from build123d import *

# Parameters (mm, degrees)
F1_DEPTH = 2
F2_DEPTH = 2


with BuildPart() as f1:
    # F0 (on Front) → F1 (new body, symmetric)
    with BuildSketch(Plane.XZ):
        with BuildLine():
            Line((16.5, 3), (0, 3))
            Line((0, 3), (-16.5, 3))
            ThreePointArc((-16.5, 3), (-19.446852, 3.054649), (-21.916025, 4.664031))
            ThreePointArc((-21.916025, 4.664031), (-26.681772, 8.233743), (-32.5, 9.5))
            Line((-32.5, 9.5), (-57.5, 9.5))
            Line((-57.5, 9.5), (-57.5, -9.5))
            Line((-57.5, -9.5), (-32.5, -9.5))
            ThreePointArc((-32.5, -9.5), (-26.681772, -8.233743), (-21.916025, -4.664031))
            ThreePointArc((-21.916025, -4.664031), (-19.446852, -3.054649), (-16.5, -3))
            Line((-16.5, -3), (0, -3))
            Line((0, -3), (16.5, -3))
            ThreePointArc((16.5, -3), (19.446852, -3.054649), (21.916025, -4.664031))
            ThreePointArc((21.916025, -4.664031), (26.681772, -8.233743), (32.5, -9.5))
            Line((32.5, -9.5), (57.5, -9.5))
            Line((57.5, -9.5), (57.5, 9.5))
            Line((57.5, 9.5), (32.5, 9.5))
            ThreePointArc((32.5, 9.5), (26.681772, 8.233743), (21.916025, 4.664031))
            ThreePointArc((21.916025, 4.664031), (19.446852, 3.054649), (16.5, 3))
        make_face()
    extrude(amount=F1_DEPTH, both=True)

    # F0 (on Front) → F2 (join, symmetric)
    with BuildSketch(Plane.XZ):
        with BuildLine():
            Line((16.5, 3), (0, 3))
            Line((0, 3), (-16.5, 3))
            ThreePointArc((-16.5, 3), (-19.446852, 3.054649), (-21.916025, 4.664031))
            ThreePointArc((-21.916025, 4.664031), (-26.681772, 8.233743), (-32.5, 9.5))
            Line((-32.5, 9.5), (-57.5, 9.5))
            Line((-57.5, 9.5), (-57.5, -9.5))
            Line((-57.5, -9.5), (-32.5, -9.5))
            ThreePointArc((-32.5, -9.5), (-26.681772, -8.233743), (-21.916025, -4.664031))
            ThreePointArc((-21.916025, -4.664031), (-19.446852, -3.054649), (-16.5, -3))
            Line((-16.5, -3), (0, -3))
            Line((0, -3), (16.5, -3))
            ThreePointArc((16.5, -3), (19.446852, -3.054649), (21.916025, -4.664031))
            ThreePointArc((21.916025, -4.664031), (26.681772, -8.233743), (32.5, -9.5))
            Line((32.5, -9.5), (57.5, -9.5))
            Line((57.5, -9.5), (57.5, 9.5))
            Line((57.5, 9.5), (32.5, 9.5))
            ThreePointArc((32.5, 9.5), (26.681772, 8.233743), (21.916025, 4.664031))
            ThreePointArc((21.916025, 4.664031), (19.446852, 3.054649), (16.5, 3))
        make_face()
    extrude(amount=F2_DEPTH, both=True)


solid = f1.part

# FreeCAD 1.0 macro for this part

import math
import FreeCAD as App
import Part
import Sketcher

doc = App.newDocument("Part")
params = doc.addObject("Spreadsheet::Sheet", "Params")
for row, (alias, value) in enumerate([
    ("sketch1_width", "33 mm"),
    ("sketch1_width2", "25 mm"),
    ("sketch1_height", "19 mm"),
    ("pad1_length", "4 mm"),
    ("sketch2_width", "33 mm"),
    ("sketch2_width2", "25 mm"),
    ("sketch2_height", "19 mm"),
    ("pad2_length", "4 mm"),
], start=1):
    params.set(f"A{row}", alias)
    params.set(f"B{row}", "=" + value)
    params.setAlias(f"B{row}", alias)

body = doc.addObject("PartDesign::Body", "Body")

# Sketch on XZ plane
sketch1 = body.newObject("Sketcher::SketchObject", "Sketch")
sketch1.AttachmentSupport = (doc.getObject("XZ_Plane"), [""])
sketch1.MapMode = "FlatFace"
sketch1.addGeometry(Part.LineSegment(App.Vector(16.5, 3, 0), App.Vector(-16.5, 3, 0)), False)
sketch1.addGeometry(Part.ArcOfCircle(Part.Circle(App.Vector(-17.878239, 8.160112, 0), App.Vector(0, 0, 1), 5.341001), math.radians(-139.112644), math.radians(-75.045682)), False)
sketch1.addGeometry(Part.ArcOfCircle(Part.Circle(App.Vector(-32.500002, -4.500003, 0), App.Vector(0, 0, 1), 14.000003), math.radians(40.887334), math.radians(89.999993)), False)
sketch1.addGeometry(Part.LineSegment(App.Vector(-32.5, 9.5, 0), App.Vector(-57.5, 9.5, 0)), False)
sketch1.addGeometry(Part.LineSegment(App.Vector(-57.5, 9.5, 0), App.Vector(-57.5, -9.5, 0)), False)
sketch1.addGeometry(Part.LineSegment(App.Vector(-57.5, -9.5, 0), App.Vector(-32.5, -9.5, 0)), False)
sketch1.addGeometry(Part.ArcOfCircle(Part.Circle(App.Vector(-32.500002, 4.500003, 0), App.Vector(0, 0, 1), 14.000003), math.radians(-89.999993), math.radians(-40.887334)), False)
sketch1.addGeometry(Part.ArcOfCircle(Part.Circle(App.Vector(-17.878239, -8.160112, 0), App.Vector(0, 0, 1), 5.341001), math.radians(75.045682), math.radians(139.112644)), False)
sketch1.addGeometry(Part.LineSegment(App.Vector(-16.5, -3, 0), App.Vector(16.5, -3, 0)), False)
sketch1.addGeometry(Part.ArcOfCircle(Part.Circle(App.Vector(17.878239, -8.160112, 0), App.Vector(0, 0, 1), 5.341001), math.radians(40.887356), math.radians(104.954318)), False)
sketch1.addGeometry(Part.ArcOfCircle(Part.Circle(App.Vector(32.500002, 4.500003, 0), App.Vector(0, 0, 1), 14.000003), math.radians(-139.112666), math.radians(-90.000007)), False)
sketch1.addGeometry(Part.LineSegment(App.Vector(32.5, -9.5, 0), App.Vector(57.5, -9.5, 0)), False)
sketch1.addGeometry(Part.LineSegment(App.Vector(57.5, -9.5, 0), App.Vector(57.5, 9.5, 0)), False)
sketch1.addGeometry(Part.LineSegment(App.Vector(57.5, 9.5, 0), App.Vector(32.5, 9.5, 0)), False)
sketch1.addGeometry(Part.ArcOfCircle(Part.Circle(App.Vector(32.500002, -4.500003, 0), App.Vector(0, 0, 1), 14.000003), math.radians(90.000007), math.radians(139.112666)), False)
sketch1.addGeometry(Part.ArcOfCircle(Part.Circle(App.Vector(17.878239, 8.160112, 0), App.Vector(0, 0, 1), 5.341001), math.radians(-104.954318), math.radians(-40.887356)), False)
sketch1.addConstraint(Sketcher.Constraint("Coincident", 0, 2, 1, 2))
sketch1.addConstraint(Sketcher.Constraint("Tangent", 1, 1, 2, 1))
sketch1.addConstraint(Sketcher.Constraint("Tangent", 2, 2, 3, 1))
sketch1.addConstraint(Sketcher.Constraint("Coincident", 3, 2, 4, 1))
sketch1.addConstraint(Sketcher.Constraint("Coincident", 4, 2, 5, 1))
sketch1.addConstraint(Sketcher.Constraint("Tangent", 5, 2, 6, 1))
sketch1.addConstraint(Sketcher.Constraint("Tangent", 6, 2, 7, 2))
sketch1.addConstraint(Sketcher.Constraint("Coincident", 7, 1, 8, 1))
sketch1.addConstraint(Sketcher.Constraint("Coincident", 8, 2, 9, 2))
sketch1.addConstraint(Sketcher.Constraint("Tangent", 9, 1, 10, 1))
sketch1.addConstraint(Sketcher.Constraint("Tangent", 10, 2, 11, 1))
sketch1.addConstraint(Sketcher.Constraint("Coincident", 11, 2, 12, 1))
sketch1.addConstraint(Sketcher.Constraint("Coincident", 12, 2, 13, 1))
sketch1.addConstraint(Sketcher.Constraint("Tangent", 13, 2, 14, 1))
sketch1.addConstraint(Sketcher.Constraint("Tangent", 14, 2, 15, 2))
sketch1.addConstraint(Sketcher.Constraint("Coincident", 15, 1, 0, 1))
sketch1.addConstraint(Sketcher.Constraint("Horizontal", 0))
sketch1.addConstraint(Sketcher.Constraint("Horizontal", 3))
sketch1.addConstraint(Sketcher.Constraint("Vertical", 4))
sketch1.addConstraint(Sketcher.Constraint("Horizontal", 5))
sketch1.addConstraint(Sketcher.Constraint("Horizontal", 8))
sketch1.addConstraint(Sketcher.Constraint("Horizontal", 11))
sketch1.addConstraint(Sketcher.Constraint("Vertical", 12))
sketch1.addConstraint(Sketcher.Constraint("Horizontal", 13))
sketch1.addConstraint(Sketcher.Constraint("Equal", 2, 6))
sketch1.addConstraint(Sketcher.Constraint("Equal", 1, 7))
sketch1.addConstraint(Sketcher.Constraint("Equal", 7, 9))
sketch1.addConstraint(Sketcher.Constraint("Equal", 6, 10))
sketch1.addConstraint(Sketcher.Constraint("Equal", 10, 14))
sketch1.addConstraint(Sketcher.Constraint("Equal", 9, 15))
sketch1.addConstraint(Sketcher.Constraint("Symmetric", 1, 3, 9, 3, -1, 1))
sketch1.addConstraint(Sketcher.Constraint("Symmetric", 6, 3, 14, 3, -1, 1))
sketch1.addConstraint(Sketcher.Constraint("Symmetric", 3, 2, 11, 2, -1, 1))
sketch1.addConstraint(Sketcher.Constraint("Symmetric", 7, 1, 15, 1, -1, 1))
sketch1.addConstraint(Sketcher.Constraint("Symmetric", 7, 3, 9, 3, -2))
sketch1.addConstraint(Sketcher.Constraint("Horizontal", 6, 3, 10, 3))
sketch1.addConstraint(Sketcher.Constraint("DistanceX", 0, 2, 0, 1, 33.0))
sketch1.addConstraint(Sketcher.Constraint("DistanceX", 3, 2, 3, 1, 25.0))
sketch1.addConstraint(Sketcher.Constraint("DistanceY", 4, 2, 4, 1, 19.0))
sketch1.addConstraint(Sketcher.Constraint("DistanceY", -1, 1, 0, 2, 3.0))
sketch1.addConstraint(Sketcher.Constraint("Radius", 1, 5.341001))
sketch1.addConstraint(Sketcher.Constraint("DistanceX", 6, 3, 0, 2, 16.000002))
sketch1.addConstraint(Sketcher.Constraint("Radius", 2, 14.000003))
sketch1.setExpression("Constraints[36]", "Params.sketch1_width")
sketch1.setExpression("Constraints[37]", "Params.sketch1_width2")
sketch1.setExpression("Constraints[38]", "Params.sketch1_height")
pad1 = body.newObject("PartDesign::Pad", "Pad")
pad1.Profile = sketch1
pad1.setExpression("Length", "Params.pad1_length")
pad1.Midplane = True

# Sketch on XZ plane
sketch2 = body.newObject("Sketcher::SketchObject", "Sketch001")
sketch2.AttachmentSupport = (doc.getObject("XZ_Plane"), [""])
sketch2.MapMode = "FlatFace"
sketch2.addGeometry(Part.LineSegment(App.Vector(16.5, 3, 0), App.Vector(-16.5, 3, 0)), False)
sketch2.addGeometry(Part.ArcOfCircle(Part.Circle(App.Vector(-17.878239, 8.160112, 0), App.Vector(0, 0, 1), 5.341001), math.radians(-139.112644), math.radians(-75.045682)), False)
sketch2.addGeometry(Part.ArcOfCircle(Part.Circle(App.Vector(-32.500002, -4.500003, 0), App.Vector(0, 0, 1), 14.000003), math.radians(40.887334), math.radians(89.999993)), False)
sketch2.addGeometry(Part.LineSegment(App.Vector(-32.5, 9.5, 0), App.Vector(-57.5, 9.5, 0)), False)
sketch2.addGeometry(Part.LineSegment(App.Vector(-57.5, 9.5, 0), App.Vector(-57.5, -9.5, 0)), False)
sketch2.addGeometry(Part.LineSegment(App.Vector(-57.5, -9.5, 0), App.Vector(-32.5, -9.5, 0)), False)
sketch2.addGeometry(Part.ArcOfCircle(Part.Circle(App.Vector(-32.500002, 4.500003, 0), App.Vector(0, 0, 1), 14.000003), math.radians(-89.999993), math.radians(-40.887334)), False)
sketch2.addGeometry(Part.ArcOfCircle(Part.Circle(App.Vector(-17.878239, -8.160112, 0), App.Vector(0, 0, 1), 5.341001), math.radians(75.045682), math.radians(139.112644)), False)
sketch2.addGeometry(Part.LineSegment(App.Vector(-16.5, -3, 0), App.Vector(16.5, -3, 0)), False)
sketch2.addGeometry(Part.ArcOfCircle(Part.Circle(App.Vector(17.878239, -8.160112, 0), App.Vector(0, 0, 1), 5.341001), math.radians(40.887356), math.radians(104.954318)), False)
sketch2.addGeometry(Part.ArcOfCircle(Part.Circle(App.Vector(32.500002, 4.500003, 0), App.Vector(0, 0, 1), 14.000003), math.radians(-139.112666), math.radians(-90.000007)), False)
sketch2.addGeometry(Part.LineSegment(App.Vector(32.5, -9.5, 0), App.Vector(57.5, -9.5, 0)), False)
sketch2.addGeometry(Part.LineSegment(App.Vector(57.5, -9.5, 0), App.Vector(57.5, 9.5, 0)), False)
sketch2.addGeometry(Part.LineSegment(App.Vector(57.5, 9.5, 0), App.Vector(32.5, 9.5, 0)), False)
sketch2.addGeometry(Part.ArcOfCircle(Part.Circle(App.Vector(32.500002, -4.500003, 0), App.Vector(0, 0, 1), 14.000003), math.radians(90.000007), math.radians(139.112666)), False)
sketch2.addGeometry(Part.ArcOfCircle(Part.Circle(App.Vector(17.878239, 8.160112, 0), App.Vector(0, 0, 1), 5.341001), math.radians(-104.954318), math.radians(-40.887356)), False)
sketch2.addConstraint(Sketcher.Constraint("Coincident", 0, 2, 1, 2))
sketch2.addConstraint(Sketcher.Constraint("Tangent", 1, 1, 2, 1))
sketch2.addConstraint(Sketcher.Constraint("Tangent", 2, 2, 3, 1))
sketch2.addConstraint(Sketcher.Constraint("Coincident", 3, 2, 4, 1))
sketch2.addConstraint(Sketcher.Constraint("Coincident", 4, 2, 5, 1))
sketch2.addConstraint(Sketcher.Constraint("Tangent", 5, 2, 6, 1))
sketch2.addConstraint(Sketcher.Constraint("Tangent", 6, 2, 7, 2))
sketch2.addConstraint(Sketcher.Constraint("Coincident", 7, 1, 8, 1))
sketch2.addConstraint(Sketcher.Constraint("Coincident", 8, 2, 9, 2))
sketch2.addConstraint(Sketcher.Constraint("Tangent", 9, 1, 10, 1))
sketch2.addConstraint(Sketcher.Constraint("Tangent", 10, 2, 11, 1))
sketch2.addConstraint(Sketcher.Constraint("Coincident", 11, 2, 12, 1))
sketch2.addConstraint(Sketcher.Constraint("Coincident", 12, 2, 13, 1))
sketch2.addConstraint(Sketcher.Constraint("Tangent", 13, 2, 14, 1))
sketch2.addConstraint(Sketcher.Constraint("Tangent", 14, 2, 15, 2))
sketch2.addConstraint(Sketcher.Constraint("Coincident", 15, 1, 0, 1))
sketch2.addConstraint(Sketcher.Constraint("Horizontal", 0))
sketch2.addConstraint(Sketcher.Constraint("Horizontal", 3))
sketch2.addConstraint(Sketcher.Constraint("Vertical", 4))
sketch2.addConstraint(Sketcher.Constraint("Horizontal", 5))
sketch2.addConstraint(Sketcher.Constraint("Horizontal", 8))
sketch2.addConstraint(Sketcher.Constraint("Horizontal", 11))
sketch2.addConstraint(Sketcher.Constraint("Vertical", 12))
sketch2.addConstraint(Sketcher.Constraint("Horizontal", 13))
sketch2.addConstraint(Sketcher.Constraint("Equal", 2, 6))
sketch2.addConstraint(Sketcher.Constraint("Equal", 1, 7))
sketch2.addConstraint(Sketcher.Constraint("Equal", 7, 9))
sketch2.addConstraint(Sketcher.Constraint("Equal", 6, 10))
sketch2.addConstraint(Sketcher.Constraint("Equal", 10, 14))
sketch2.addConstraint(Sketcher.Constraint("Equal", 9, 15))
sketch2.addConstraint(Sketcher.Constraint("Symmetric", 1, 3, 9, 3, -1, 1))
sketch2.addConstraint(Sketcher.Constraint("Symmetric", 6, 3, 14, 3, -1, 1))
sketch2.addConstraint(Sketcher.Constraint("Symmetric", 3, 2, 11, 2, -1, 1))
sketch2.addConstraint(Sketcher.Constraint("Symmetric", 7, 1, 15, 1, -1, 1))
sketch2.addConstraint(Sketcher.Constraint("Symmetric", 7, 3, 9, 3, -2))
sketch2.addConstraint(Sketcher.Constraint("Horizontal", 6, 3, 10, 3))
sketch2.addConstraint(Sketcher.Constraint("DistanceX", 0, 2, 0, 1, 33.0))
sketch2.addConstraint(Sketcher.Constraint("DistanceX", 3, 2, 3, 1, 25.0))
sketch2.addConstraint(Sketcher.Constraint("DistanceY", 4, 2, 4, 1, 19.0))
sketch2.addConstraint(Sketcher.Constraint("DistanceY", -1, 1, 0, 2, 3.0))
sketch2.addConstraint(Sketcher.Constraint("Radius", 1, 5.341001))
sketch2.addConstraint(Sketcher.Constraint("DistanceX", 6, 3, 0, 2, 16.000002))
sketch2.addConstraint(Sketcher.Constraint("Radius", 2, 14.000003))
sketch2.setExpression("Constraints[36]", "Params.sketch2_width")
sketch2.setExpression("Constraints[37]", "Params.sketch2_width2")
sketch2.setExpression("Constraints[38]", "Params.sketch2_height")
pad2 = body.newObject("PartDesign::Pad", "Pad001")
pad2.Profile = sketch2
pad2.setExpression("Length", "Params.pad2_length")
pad2.Midplane = True

doc.recompute()
